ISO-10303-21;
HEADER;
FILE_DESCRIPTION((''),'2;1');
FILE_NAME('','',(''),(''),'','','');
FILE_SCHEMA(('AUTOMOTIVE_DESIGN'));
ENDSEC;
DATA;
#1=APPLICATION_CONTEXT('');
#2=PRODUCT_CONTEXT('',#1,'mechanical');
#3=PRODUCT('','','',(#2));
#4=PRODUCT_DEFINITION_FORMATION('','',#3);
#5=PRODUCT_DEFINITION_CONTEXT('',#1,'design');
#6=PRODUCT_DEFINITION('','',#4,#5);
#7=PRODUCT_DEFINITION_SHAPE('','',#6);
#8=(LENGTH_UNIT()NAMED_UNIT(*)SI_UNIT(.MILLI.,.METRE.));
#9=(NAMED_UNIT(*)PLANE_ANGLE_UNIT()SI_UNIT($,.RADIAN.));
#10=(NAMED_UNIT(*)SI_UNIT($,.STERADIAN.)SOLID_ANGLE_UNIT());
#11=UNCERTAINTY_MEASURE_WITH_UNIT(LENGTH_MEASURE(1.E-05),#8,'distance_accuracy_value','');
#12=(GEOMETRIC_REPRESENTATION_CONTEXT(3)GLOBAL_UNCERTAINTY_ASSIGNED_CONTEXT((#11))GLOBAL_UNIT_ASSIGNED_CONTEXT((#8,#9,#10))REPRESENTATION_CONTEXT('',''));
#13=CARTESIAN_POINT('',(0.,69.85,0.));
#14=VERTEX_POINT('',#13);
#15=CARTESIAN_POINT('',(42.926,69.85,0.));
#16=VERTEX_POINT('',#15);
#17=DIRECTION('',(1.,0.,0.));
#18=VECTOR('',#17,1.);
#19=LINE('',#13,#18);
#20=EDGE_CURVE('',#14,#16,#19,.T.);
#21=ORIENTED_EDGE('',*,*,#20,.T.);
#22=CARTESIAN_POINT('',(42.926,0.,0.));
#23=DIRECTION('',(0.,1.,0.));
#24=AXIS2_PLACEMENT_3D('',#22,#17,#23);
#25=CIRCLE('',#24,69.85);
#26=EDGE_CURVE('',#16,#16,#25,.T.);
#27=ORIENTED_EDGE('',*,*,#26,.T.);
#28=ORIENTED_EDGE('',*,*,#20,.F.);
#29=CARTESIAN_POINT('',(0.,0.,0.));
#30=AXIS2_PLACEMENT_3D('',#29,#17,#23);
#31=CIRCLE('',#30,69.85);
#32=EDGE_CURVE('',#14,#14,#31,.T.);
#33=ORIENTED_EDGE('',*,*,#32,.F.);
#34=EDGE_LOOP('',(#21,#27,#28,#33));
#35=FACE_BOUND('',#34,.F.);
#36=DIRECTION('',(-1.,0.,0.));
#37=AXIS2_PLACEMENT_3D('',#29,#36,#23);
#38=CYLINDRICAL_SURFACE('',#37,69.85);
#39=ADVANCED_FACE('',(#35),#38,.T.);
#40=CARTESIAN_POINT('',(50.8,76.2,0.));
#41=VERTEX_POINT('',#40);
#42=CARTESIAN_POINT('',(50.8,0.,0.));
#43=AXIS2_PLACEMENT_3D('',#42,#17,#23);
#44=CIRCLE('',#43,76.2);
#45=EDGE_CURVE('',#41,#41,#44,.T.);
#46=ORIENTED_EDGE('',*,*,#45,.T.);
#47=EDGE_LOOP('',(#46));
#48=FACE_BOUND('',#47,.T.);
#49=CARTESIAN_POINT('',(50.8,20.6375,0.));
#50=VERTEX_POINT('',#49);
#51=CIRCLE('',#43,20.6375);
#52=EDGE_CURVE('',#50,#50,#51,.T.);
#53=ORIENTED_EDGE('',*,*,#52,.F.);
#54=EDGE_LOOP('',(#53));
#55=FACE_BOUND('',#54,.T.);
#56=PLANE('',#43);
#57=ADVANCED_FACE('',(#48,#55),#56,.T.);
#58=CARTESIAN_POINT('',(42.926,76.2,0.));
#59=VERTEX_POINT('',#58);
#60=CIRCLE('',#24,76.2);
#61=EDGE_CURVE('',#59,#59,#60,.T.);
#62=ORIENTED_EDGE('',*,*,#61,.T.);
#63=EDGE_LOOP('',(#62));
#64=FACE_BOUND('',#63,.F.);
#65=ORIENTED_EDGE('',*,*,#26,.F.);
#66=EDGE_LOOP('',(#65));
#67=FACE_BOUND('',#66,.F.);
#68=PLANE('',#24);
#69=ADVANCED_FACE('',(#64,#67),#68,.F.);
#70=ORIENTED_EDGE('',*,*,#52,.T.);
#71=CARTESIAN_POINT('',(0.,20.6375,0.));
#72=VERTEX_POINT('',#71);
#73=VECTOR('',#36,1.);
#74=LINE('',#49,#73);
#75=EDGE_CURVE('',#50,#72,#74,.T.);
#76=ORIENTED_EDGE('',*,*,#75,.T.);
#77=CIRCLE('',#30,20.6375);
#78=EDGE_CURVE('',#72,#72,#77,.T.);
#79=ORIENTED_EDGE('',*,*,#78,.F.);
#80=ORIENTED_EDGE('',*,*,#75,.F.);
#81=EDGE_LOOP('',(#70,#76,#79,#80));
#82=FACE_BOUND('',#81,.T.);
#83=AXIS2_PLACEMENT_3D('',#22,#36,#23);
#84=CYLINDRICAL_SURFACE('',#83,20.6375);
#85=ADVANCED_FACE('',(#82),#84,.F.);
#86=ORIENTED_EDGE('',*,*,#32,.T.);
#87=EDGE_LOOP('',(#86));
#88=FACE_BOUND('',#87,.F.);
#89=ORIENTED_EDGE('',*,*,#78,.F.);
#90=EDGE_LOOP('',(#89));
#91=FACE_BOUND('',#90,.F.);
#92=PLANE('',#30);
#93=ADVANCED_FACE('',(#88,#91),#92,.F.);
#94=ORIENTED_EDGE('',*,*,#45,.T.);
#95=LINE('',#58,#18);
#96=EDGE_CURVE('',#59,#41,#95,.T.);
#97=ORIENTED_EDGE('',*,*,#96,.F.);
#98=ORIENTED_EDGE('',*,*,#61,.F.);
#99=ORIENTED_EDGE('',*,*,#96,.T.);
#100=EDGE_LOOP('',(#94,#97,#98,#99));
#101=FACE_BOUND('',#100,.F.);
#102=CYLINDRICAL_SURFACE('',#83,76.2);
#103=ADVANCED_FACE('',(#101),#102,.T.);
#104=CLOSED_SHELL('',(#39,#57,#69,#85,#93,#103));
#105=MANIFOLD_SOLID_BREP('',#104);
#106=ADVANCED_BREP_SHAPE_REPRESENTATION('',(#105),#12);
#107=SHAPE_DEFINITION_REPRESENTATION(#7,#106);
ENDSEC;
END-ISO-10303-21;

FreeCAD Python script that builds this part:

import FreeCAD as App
import Part
import Sketcher
from FreeCAD import Vector
Q = App.Units.Quantity

doc = App.newDocument("Part")
body = doc.addObject("PartDesign::Body", "Body")

# Sketch on YZ plane
sketch1 = doc.addObject("Sketcher::SketchObject", "Sketch")
body.addObject(sketch1)
sketch1.AttachmentSupport = (doc.YZ_Plane, [""])
sketch1.MapMode = "FlatFace"
sketch1.addGeometry([
    Part.Circle(Vector(0, 0, 0), Vector(0, 0, 1), 70),
    Part.Circle(Vector(0, 0, 0), Vector(0, 0, 1), 21),
], False)
sketch1.addConstraint([
    Sketcher.Constraint("Coincident", 0, 3, -1, 1),
    Sketcher.Constraint("Coincident", 1, 3, -1, 1),
    Sketcher.Constraint("Diameter", 0, Q("5.5 in")),
    Sketcher.Constraint("Diameter", 1, Q("1.625 in")),
])
pad1 = doc.addObject("PartDesign::Pad", "Pad")
body.addObject(pad1)
pad1.Profile = sketch1
pad1.Length = Q("1.69 in")

# Sketch on YZ plane
sketch2 = doc.addObject("Sketcher::SketchObject", "Sketch001")
body.addObject(sketch2)
sketch2.AttachmentSupport = (doc.YZ_Plane, [""])
sketch2.MapMode = "FlatFace"
sketch2.AttachmentOffset = App.Placement(Vector(0, 0, 1.69 * 25.4), App.Rotation())
sketch2.addGeometry([
    Part.Circle(Vector(0, 0, 0), Vector(0, 0, 1), 76),
    Part.Circle(Vector(0, 0, 0), Vector(0, 0, 1), 21),
], False)
sketch2.addConstraint([
    Sketcher.Constraint("Coincident", 0, 3, -1, 1),
    Sketcher.Constraint("Coincident", 1, 3, -1, 1),
    Sketcher.Constraint("Diameter", 0, Q("6 in")),
    Sketcher.Constraint("Diameter", 1, Q("1.625 in")),
])
pad2 = doc.addObject("PartDesign::Pad", "Pad001")
body.addObject(pad2)
pad2.Profile = sketch2
pad2.Length = Q("0.31 in")

doc.recompute()
